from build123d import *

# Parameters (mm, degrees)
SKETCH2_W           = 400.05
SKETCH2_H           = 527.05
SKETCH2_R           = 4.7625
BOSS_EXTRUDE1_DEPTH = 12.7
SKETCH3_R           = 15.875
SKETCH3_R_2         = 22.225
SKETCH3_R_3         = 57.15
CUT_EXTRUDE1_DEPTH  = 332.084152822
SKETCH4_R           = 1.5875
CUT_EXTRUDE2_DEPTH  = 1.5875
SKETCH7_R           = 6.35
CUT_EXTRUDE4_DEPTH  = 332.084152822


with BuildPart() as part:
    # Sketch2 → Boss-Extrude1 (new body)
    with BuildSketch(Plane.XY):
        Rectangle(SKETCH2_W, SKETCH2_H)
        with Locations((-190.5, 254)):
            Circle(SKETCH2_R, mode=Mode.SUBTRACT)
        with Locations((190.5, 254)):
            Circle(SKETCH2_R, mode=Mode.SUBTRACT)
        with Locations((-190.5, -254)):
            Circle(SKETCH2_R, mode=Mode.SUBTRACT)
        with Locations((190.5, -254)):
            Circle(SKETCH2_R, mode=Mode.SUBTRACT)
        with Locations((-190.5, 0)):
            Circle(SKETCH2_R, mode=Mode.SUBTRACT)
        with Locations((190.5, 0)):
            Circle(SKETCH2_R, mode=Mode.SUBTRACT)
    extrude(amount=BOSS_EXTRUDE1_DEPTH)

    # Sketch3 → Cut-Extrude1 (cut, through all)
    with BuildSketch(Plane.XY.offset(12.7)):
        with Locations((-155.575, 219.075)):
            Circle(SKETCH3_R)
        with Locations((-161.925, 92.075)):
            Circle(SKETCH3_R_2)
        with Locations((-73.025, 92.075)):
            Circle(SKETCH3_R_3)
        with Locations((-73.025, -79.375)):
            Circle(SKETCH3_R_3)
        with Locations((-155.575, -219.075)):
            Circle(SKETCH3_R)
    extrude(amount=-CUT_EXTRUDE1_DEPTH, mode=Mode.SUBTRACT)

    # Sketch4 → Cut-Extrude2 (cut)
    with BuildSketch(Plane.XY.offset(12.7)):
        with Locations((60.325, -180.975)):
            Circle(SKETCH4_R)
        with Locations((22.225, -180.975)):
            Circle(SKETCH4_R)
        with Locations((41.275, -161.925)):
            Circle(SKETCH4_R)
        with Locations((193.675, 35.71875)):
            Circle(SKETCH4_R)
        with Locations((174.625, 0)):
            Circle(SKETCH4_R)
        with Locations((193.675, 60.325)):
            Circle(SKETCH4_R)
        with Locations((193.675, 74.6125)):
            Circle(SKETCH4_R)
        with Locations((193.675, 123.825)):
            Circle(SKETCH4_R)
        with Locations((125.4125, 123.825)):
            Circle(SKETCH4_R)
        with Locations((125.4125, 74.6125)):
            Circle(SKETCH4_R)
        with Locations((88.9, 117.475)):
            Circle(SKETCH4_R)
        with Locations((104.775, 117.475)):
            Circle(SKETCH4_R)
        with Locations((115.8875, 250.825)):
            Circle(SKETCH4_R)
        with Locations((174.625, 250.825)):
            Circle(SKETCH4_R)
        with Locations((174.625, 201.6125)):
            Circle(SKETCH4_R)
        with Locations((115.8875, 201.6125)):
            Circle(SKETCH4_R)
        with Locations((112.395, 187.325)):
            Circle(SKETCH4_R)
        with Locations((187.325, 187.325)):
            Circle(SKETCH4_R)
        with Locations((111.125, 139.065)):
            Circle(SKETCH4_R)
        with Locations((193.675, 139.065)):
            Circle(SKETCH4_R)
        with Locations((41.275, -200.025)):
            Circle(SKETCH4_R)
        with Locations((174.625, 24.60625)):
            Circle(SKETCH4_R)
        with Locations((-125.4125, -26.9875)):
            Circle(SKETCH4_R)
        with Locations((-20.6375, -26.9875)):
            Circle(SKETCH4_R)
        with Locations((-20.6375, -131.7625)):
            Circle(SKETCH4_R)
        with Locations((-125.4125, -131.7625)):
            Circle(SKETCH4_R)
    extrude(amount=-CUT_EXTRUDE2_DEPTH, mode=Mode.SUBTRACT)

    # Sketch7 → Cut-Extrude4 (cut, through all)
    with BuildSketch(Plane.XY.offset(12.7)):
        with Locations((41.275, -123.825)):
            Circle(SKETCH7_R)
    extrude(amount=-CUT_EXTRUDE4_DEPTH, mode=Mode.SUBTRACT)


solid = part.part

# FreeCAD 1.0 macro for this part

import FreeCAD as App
import Part
import Sketcher
from FreeCAD import Vector
Q = App.Units.Quantity


def add_polygon(sketch, points):
    """Adds a closed chain of lines whose ends are joined by coincident constraints."""
    first, n = sketch.GeometryCount, len(points)
    for a, b in zip(points, points[1:] + points[:1]):
        sketch.addGeometry(Part.LineSegment(App.Vector(*a, 0), App.Vector(*b, 0)), False)
    for i in range(n):
        sketch.addConstraint(Sketcher.Constraint("Coincident", first + i, 2, first + (i + 1) % n, 1))

doc = App.newDocument("Part")
params = doc.addObject("Spreadsheet::Sheet", "Params")
for row, (alias, value) in enumerate([
    ("sketch1_diameter", "0.375 in"),
    ("sketch1_width", "15.75 in"),
    ("sketch1_height", "20.75 in"),
    ("pad1_length", "0.5 in"),
    ("sketch2_diameter", "4.5 in"),
    ("sketch2_diameter2", "1.25 in"),
    ("sketch2_diameter3", "1.75 in"),
    ("sketch3_diameter", "0.125 in"),
    ("pocket2_length", "0.0625 in"),
    ("sketch4_diameter", "0.5 in"),
], start=1):
    params.set(f"A{row}", alias)
    params.set(f"B{row}", "=" + value)
    params.setAlias(f"B{row}", alias)

body = doc.addObject("PartDesign::Body", "Body")

sketch1 = doc.addObject("Sketcher::SketchObject", "Sketch")
body.addObject(sketch1)
sketch1.AttachmentSupport = (doc.XY_Plane, [""])
sketch1.MapMode = "FlatFace"
add_polygon(sketch1, [(-200.025, 263.525), (-200.025, -263.525), (200.025, -263.525), (200.025, 263.525)])
sketch1.addGeometry(Part.Circle(Vector(-190.5, -254, 0), Vector(0, 0, 1), 4.7625), False)
sketch1.addGeometry(Part.Circle(Vector(190.5, -254, 0), Vector(0, 0, 1), 4.7625), False)
sketch1.addGeometry(Part.Circle(Vector(-190.5, 0, 0), Vector(0, 0, 1), 4.7625), False)
sketch1.addGeometry(Part.Circle(Vector(-190.5, 254, 0), Vector(0, 0, 1), 4.7625), False)
sketch1.addGeometry(Part.Circle(Vector(190.5, 0, 0), Vector(0, 0, 1), 4.7625), False)
sketch1.addGeometry(Part.Circle(Vector(190.5, 254, 0), Vector(0, 0, 1), 4.7625), False)
sketch1.addConstraint(Sketcher.Constraint("Vertical", 0))
sketch1.addConstraint(Sketcher.Constraint("Horizontal", 1))
sketch1.addConstraint(Sketcher.Constraint("Vertical", 2))
sketch1.addConstraint(Sketcher.Constraint("Horizontal", 3))
sketch1.addConstraint(Sketcher.Constraint("Equal", 4, 5))
sketch1.addConstraint(Sketcher.Constraint("Equal", 5, 6))
sketch1.addConstraint(Sketcher.Constraint("Equal", 6, 7))
sketch1.addConstraint(Sketcher.Constraint("Equal", 7, 8))
sketch1.addConstraint(Sketcher.Constraint("Equal", 8, 9))
sketch1.addConstraint(Sketcher.Constraint("Symmetric", 5, 3, 7, 3, -1, 1))
sketch1.addConstraint(Sketcher.Constraint("Symmetric", 6, 3, 8, 3, -1, 1))
sketch1.addConstraint(Sketcher.Constraint("Symmetric", 4, 3, 9, 3, -1, 1))
sketch1.addConstraint(Sketcher.Constraint("Symmetric", 0, 2, 2, 2, -1, 1))
sketch1.addConstraint(Sketcher.Constraint("Symmetric", 4, 3, 5, 3, -2))
sketch1.addConstraint(Sketcher.Constraint("PointOnObject", 6, 3, -1))
sketch1.addConstraint(Sketcher.Constraint("Vertical", 4, 3, 6, 3))
sketch1.addConstraint(Sketcher.Constraint("Diameter", 4, Q("0.375 in")))
sketch1.addConstraint(Sketcher.Constraint("DistanceY", 4, 3, -1, 1, Q("10 in")))
sketch1.addConstraint(Sketcher.Constraint("DistanceX", 4, 3, 5, 3, Q("15 in")))
sketch1.addConstraint(Sketcher.Constraint("DistanceX", 1, 1, 1, 2, Q("15.75 in")))
sketch1.addConstraint(Sketcher.Constraint("DistanceY", 0, 2, 0, 1, Q("20.75 in")))
sketch1.setExpression("Constraints[20]", "Params.sketch1_diameter")
sketch1.setExpression("Constraints[23]", "Params.sketch1_width")
sketch1.setExpression("Constraints[24]", "Params.sketch1_height")
pad1 = doc.addObject("PartDesign::Pad", "Pad")
body.addObject(pad1)
pad1.Profile = sketch1
pad1.setExpression("Length", "Params.pad1_length")

sketch2 = doc.addObject("Sketcher::SketchObject", "Sketch001")
body.addObject(sketch2)
sketch2.AttachmentSupport = (doc.XY_Plane, [""])
sketch2.MapMode = "FlatFace"
sketch2.AttachmentOffset = App.Placement(Vector(0, 0, 0.5 * 25.4), App.Rotation())
sketch2.addGeometry(Part.Circle(Vector(-155.575, 219.075, 0), Vector(0, 0, 1), 15.875), False)
sketch2.addGeometry(Part.Circle(Vector(-161.925, 92.075, 0), Vector(0, 0, 1), 22.225), False)
sketch2.addGeometry(Part.Circle(Vector(-73.025, 92.075, 0), Vector(0, 0, 1), 57.15), False)
sketch2.addGeometry(Part.Circle(Vector(-73.025, -79.375, 0), Vector(0, 0, 1), 57.15), False)
sketch2.addGeometry(Part.Circle(Vector(-155.575, -219.075, 0), Vector(0, 0, 1), 15.875), False)
sketch2.addConstraint(Sketcher.Constraint("Equal", 2, 3))
sketch2.addConstraint(Sketcher.Constraint("Equal", 0, 4))
sketch2.addConstraint(Sketcher.Constraint("Symmetric", 0, 3, 4, 3, -1))
sketch2.addConstraint(Sketcher.Constraint("Horizontal", 1, 3, 2, 3))
sketch2.addConstraint(Sketcher.Constraint("Vertical", 2, 3, 3, 3))
sketch2.addConstraint(Sketcher.Constraint("Diameter", 2, Q("4.5 in")))
sketch2.addConstraint(Sketcher.Constraint("Diameter", 0, Q("1.25 in")))
sketch2.addConstraint(Sketcher.Constraint("Diameter", 1, Q("1.75 in")))
sketch2.addConstraint(Sketcher.Constraint("DistanceY", 1, 3, 0, 3, Q("5 in")))
sketch2.addConstraint(Sketcher.Constraint("DistanceX", 1, 3, 2, 3, Q("3.5 in")))
sketch2.addConstraint(Sketcher.Constraint("DistanceY", 4, 3, 3, 3, Q("5.5 in")))
sketch2.addConstraint(Sketcher.Constraint("DistanceX", 1, 3, 0, 3, Q("0.25 in")))
sketch2.addConstraint(Sketcher.Constraint("DistanceY", 3, 3, 2, 3, Q("6.75 in")))
sketch2.addConstraint(Sketcher.Constraint("DistanceX", 0, 3, -1, 1, Q("6.125 in")))
sketch2.setExpression("Constraints[5]", "Params.sketch2_diameter")
sketch2.setExpression("Constraints[6]", "Params.sketch2_diameter2")
sketch2.setExpression("Constraints[7]", "Params.sketch2_diameter3")
pocket1 = doc.addObject("PartDesign::Pocket", "Pocket")
body.addObject(pocket1)
pocket1.Profile = sketch2
pocket1.Type = "ThroughAll"

sketch3 = doc.addObject("Sketcher::SketchObject", "Sketch002")
body.addObject(sketch3)
sketch3.AttachmentSupport = (doc.XY_Plane, [""])
sketch3.MapMode = "FlatFace"
sketch3.AttachmentOffset = App.Placement(Vector(0, 0, 0.5 * 25.4), App.Rotation())
sketch3.addGeometry(Part.Circle(Vector(60.325, -180.975, 0), Vector(0, 0, 1), 1.5875), False)
sketch3.addGeometry(Part.Circle(Vector(22.225, -180.975, 0), Vector(0, 0, 1), 1.5875), False)
sketch3.addGeometry(Part.Circle(Vector(41.275, -161.925, 0), Vector(0, 0, 1), 1.5875), False)
sketch3.addGeometry(Part.Circle(Vector(193.675, 35.71875, 0), Vector(0, 0, 1), 1.5875), False)
sketch3.addGeometry(Part.Circle(Vector(174.625, 0, 0), Vector(0, 0, 1), 1.5875), False)
sketch3.addGeometry(Part.Circle(Vector(193.675, 60.325, 0), Vector(0, 0, 1), 1.5875), False)
sketch3.addGeometry(Part.Circle(Vector(193.675, 74.6125, 0), Vector(0, 0, 1), 1.5875), False)
sketch3.addGeometry(Part.Circle(Vector(193.675, 123.825, 0), Vector(0, 0, 1), 1.5875), False)
sketch3.addGeometry(Part.Circle(Vector(125.4125, 123.825, 0), Vector(0, 0, 1), 1.5875), False)
sketch3.addGeometry(Part.Circle(Vector(125.4125, 74.6125, 0), Vector(0, 0, 1), 1.5875), False)
sketch3.addGeometry(Part.Circle(Vector(88.9, 117.475, 0), Vector(0, 0, 1), 1.5875), False)
sketch3.addGeometry(Part.Circle(Vector(104.775, 117.475, 0), Vector(0, 0, 1), 1.5875), False)
sketch3.addGeometry(Part.Circle(Vector(115.8875, 250.825, 0), Vector(0, 0, 1), 1.5875), False)
sketch3.addGeometry(Part.Circle(Vector(174.625, 250.825, 0), Vector(0, 0, 1), 1.5875), False)
sketch3.addGeometry(Part.Circle(Vector(174.625, 201.6125, 0), Vector(0, 0, 1), 1.5875), False)
sketch3.addGeometry(Part.Circle(Vector(115.8875, 201.6125, 0), Vector(0, 0, 1), 1.5875), False)
sketch3.addGeometry(Part.Circle(Vector(112.395, 187.325, 0), Vector(0, 0, 1), 1.5875), False)
sketch3.addGeometry(Part.Circle(Vector(187.325, 187.325, 0), Vector(0, 0, 1), 1.5875), False)
sketch3.addGeometry(Part.Circle(Vector(111.125, 139.065, 0), Vector(0, 0, 1), 1.5875), False)
sketch3.addGeometry(Part.Circle(Vector(193.675, 139.065, 0), Vector(0, 0, 1), 1.5875), False)
sketch3.addGeometry(Part.Circle(Vector(41.275, -200.025, 0), Vector(0, 0, 1), 1.5875), False)
sketch3.addGeometry(Part.Circle(Vector(174.625, 24.60625, 0), Vector(0, 0, 1), 1.5875), False)
sketch3.addGeometry(Part.Circle(Vector(-125.4125, -26.9875, 0), Vector(0, 0, 1), 1.5875), False)
sketch3.addGeometry(Part.Circle(Vector(-20.6375, -26.9875, 0), Vector(0, 0, 1), 1.5875), False)
sketch3.addGeometry(Part.Circle(Vector(-20.6375, -131.7625, 0), Vector(0, 0, 1), 1.5875), False)
sketch3.addGeometry(Part.Circle(Vector(-125.4125, -131.7625, 0), Vector(0, 0, 1), 1.5875), False)
sketch3.addConstraint(Sketcher.Constraint("Equal", 0, 1))
sketch3.addConstraint(Sketcher.Constraint("Equal", 1, 2))
sketch3.addConstraint(Sketcher.Constraint("Equal", 2, 3))
sketch3.addConstraint(Sketcher.Constraint("Equal", 3, 4))
sketch3.addConstraint(Sketcher.Constraint("Equal", 4, 5))
sketch3.addConstraint(Sketcher.Constraint("Equal", 5, 6))
sketch3.addConstraint(Sketcher.Constraint("Equal", 6, 7))
sketch3.addConstraint(Sketcher.Constraint("Equal", 7, 8))
sketch3.addConstraint(Sketcher.Constraint("Equal", 8, 9))
sketch3.addConstraint(Sketcher.Constraint("Equal", 9, 10))
sketch3.addConstraint(Sketcher.Constraint("Equal", 10, 11))
sketch3.addConstraint(Sketcher.Constraint("Equal", 11, 12))
sketch3.addConstraint(Sketcher.Constraint("Equal", 12, 13))
sketch3.addConstraint(Sketcher.Constraint("Equal", 13, 14))
sketch3.addConstraint(Sketcher.Constraint("Equal", 14, 15))
sketch3.addConstraint(Sketcher.Constraint("Equal", 15, 16))
sketch3.addConstraint(Sketcher.Constraint("Equal", 16, 17))
sketch3.addConstraint(Sketcher.Constraint("Equal", 17, 18))
sketch3.addConstraint(Sketcher.Constraint("Equal", 18, 19))
sketch3.addConstraint(Sketcher.Constraint("Equal", 19, 20))
sketch3.addConstraint(Sketcher.Constraint("Equal", 20, 21))
sketch3.addConstraint(Sketcher.Constraint("Equal", 21, 22))
sketch3.addConstraint(Sketcher.Constraint("Equal", 22, 23))
sketch3.addConstraint(Sketcher.Constraint("Equal", 23, 24))
sketch3.addConstraint(Sketcher.Constraint("Equal", 24, 25))
sketch3.addConstraint(Sketcher.Constraint("PointOnObject", 4, 3, -1))
sketch3.addConstraint(Sketcher.Constraint("Horizontal", 0, 3, 1, 3))
sketch3.addConstraint(Sketcher.Constraint("Horizontal", 7, 3, 8, 3))
sketch3.addConstraint(Sketcher.Constraint("Horizontal", 6, 3, 9, 3))
sketch3.addConstraint(Sketcher.Constraint("Horizontal", 10, 3, 11, 3))
sketch3.addConstraint(Sketcher.Constraint("Horizontal", 12, 3, 13, 3))
sketch3.addConstraint(Sketcher.Constraint("Horizontal", 14, 3, 15, 3))
sketch3.addConstraint(Sketcher.Constraint("Horizontal", 16, 3, 17, 3))
sketch3.addConstraint(Sketcher.Constraint("Horizontal", 18, 3, 19, 3))
sketch3.addConstraint(Sketcher.Constraint("Horizontal", 22, 3, 23, 3))
sketch3.addConstraint(Sketcher.Constraint("Horizontal", 24, 3, 25, 3))
sketch3.addConstraint(Sketcher.Constraint("Vertical", 3, 3, 5, 3))
sketch3.addConstraint(Sketcher.Constraint("Vertical", 5, 3, 6, 3))
sketch3.addConstraint(Sketcher.Constraint("Vertical", 6, 3, 7, 3))
sketch3.addConstraint(Sketcher.Constraint("Vertical", 8, 3, 9, 3))
sketch3.addConstraint(Sketcher.Constraint("Vertical", 4, 3, 13, 3))
sketch3.addConstraint(Sketcher.Constraint("Vertical", 13, 3, 14, 3))
sketch3.addConstraint(Sketcher.Constraint("Vertical", 12, 3, 15, 3))
sketch3.addConstraint(Sketcher.Constraint("Vertical", 7, 3, 19, 3))
sketch3.addConstraint(Sketcher.Constraint("Vertical", 2, 3, 20, 3))
sketch3.addConstraint(Sketcher.Constraint("Vertical", 14, 3, 21, 3))
sketch3.addConstraint(Sketcher.Constraint("Vertical", 23, 3, 24, 3))
sketch3.addConstraint(Sketcher.Constraint("Vertical", 22, 3, 25, 3))
sketch3.addConstraint(Sketcher.Constraint("Diameter", 0, Q("0.125 in")))
sketch3.addConstraint(Sketcher.Constraint("DistanceX", 2, 3, 3, 3, Q("6 in")))
sketch3.addConstraint(Sketcher.Constraint("DistanceX", 1, 3, 4, 3, Q("6 in")))
sketch3.addConstraint(Sketcher.Constraint("DistanceY", 8, 3, 12, 3, Q("5 in")))
sketch3.addConstraint(Sketcher.Constraint("DistanceY", 23, 3, 9, 3, Q("4 in")))
sketch3.addConstraint(Sketcher.Constraint("DistanceX", -1, 1, 10, 3, Q("3.5 in")))
sketch3.addConstraint(Sketcher.Constraint("DistanceX", 1, 3, 0, 3, Q("1.5 in")))
sketch3.addConstraint(Sketcher.Constraint("DistanceY", 0, 3, 5, 3, Q("9.5 in")))
sketch3.addConstraint(Sketcher.Constraint("DistanceY", 5, 3, 7, 3, Q("2.5 in")))
sketch3.addConstraint(Sketcher.Constraint("DistanceX", 11, 3, 7, 3, Q("3.5 in")))
sketch3.addConstraint(Sketcher.Constraint("DistanceY", 16, 3, 12, 3, Q("2.5 in")))
sketch3.addConstraint(Sketcher.Constraint("DistanceX", 11, 3, 16, 3, Q("0.3 in")))
sketch3.addConstraint(Sketcher.Constraint("DistanceX", 14, 3, 17, 3, Q("0.5 in")))
sketch3.addConstraint(Sketcher.Constraint("DistanceY", 8, 3, 18, 3, Q("0.6 in")))
sketch3.addConstraint(Sketcher.Constraint("DistanceY", 20, 3, 2, 3, Q("1.5 in")))
sketch3.addConstraint(Sketcher.Constraint("DistanceX", 1, 3, 2, 3, Q("0.75 in")))
sketch3.addConstraint(Sketcher.Constraint("DistanceY", 1, 3, 2, 3, Q("0.75 in")))
sketch3.addConstraint(Sketcher.Constraint("DistanceY", 10, 3, 8, 3, Q("0.25 in")))
sketch3.addConstraint(Sketcher.Constraint("DistanceX", 11, 3, 18, 3, Q("0.25 in")))
sketch3.addConstraint(Sketcher.Constraint("DistanceX", 23, 3, 9, 3, Q("5.75 in")))
sketch3.addConstraint(Sketcher.Constraint("DistanceX", -1, 1, 0, 3, Q("2.375 in")))
sketch3.addConstraint(Sketcher.Constraint("DistanceY", 0, 3, -1, 1, Q("7.125 in")))
sketch3.addConstraint(Sketcher.Constraint("DistanceY", -1, 1, 3, 3, Q("1.40625 in")))
sketch3.addConstraint(Sketcher.Constraint("DistanceY", -1, 1, 6, 3, Q("2.9375 in")))
sketch3.addConstraint(Sketcher.Constraint("DistanceX", -1, 1, 8, 3, Q("4.9375 in")))
sketch3.addConstraint(Sketcher.Constraint("DistanceX", -1, 1, 12, 3, Q("4.5625 in")))
sketch3.addConstraint(Sketcher.Constraint("DistanceY", -1, 1, 14, 3, Q("7.9375 in")))
sketch3.addConstraint(Sketcher.Constraint("DistanceY", -1, 1, 21, 3, Q("0.96875 in")))
sketch3.addConstraint(Sketcher.Constraint("DistanceX", 22, 3, -1, 1, Q("4.9375 in")))
sketch3.addConstraint(Sketcher.Constraint("DistanceY", 24, 3, -1, 1, Q("5.1875 in")))
sketch3.setExpression("Constraints[48]", "Params.sketch3_diameter")
pocket2 = doc.addObject("PartDesign::Pocket", "Pocket001")
body.addObject(pocket2)
pocket2.Profile = sketch3
pocket2.setExpression("Length", "Params.pocket2_length")

sketch4 = doc.addObject("Sketcher::SketchObject", "Sketch003")
body.addObject(sketch4)
sketch4.AttachmentSupport = (doc.XY_Plane, [""])
sketch4.MapMode = "FlatFace"
sketch4.AttachmentOffset = App.Placement(Vector(0, 0, 0.5 * 25.4), App.Rotation())
sketch4.addGeometry(Part.Circle(Vector(41.275, -123.825, 0), Vector(0, 0, 1), 6.35), False)
sketch4.addConstraint(Sketcher.Constraint("Diameter", 0, Q("0.5 in")))
sketch4.addConstraint(Sketcher.Constraint("DistanceX", -1, 1, 0, 3, Q("1.625 in")))
sketch4.addConstraint(Sketcher.Constraint("DistanceY", 0, 3, -1, 1, Q("4.875 in")))
sketch4.setExpression("Constraints[0]", "Params.sketch4_diameter")
pocket3 = doc.addObject("PartDesign::Pocket", "Pocket002")
body.addObject(pocket3)
pocket3.Profile = sketch4
pocket3.Type = "ThroughAll"

doc.recompute()
